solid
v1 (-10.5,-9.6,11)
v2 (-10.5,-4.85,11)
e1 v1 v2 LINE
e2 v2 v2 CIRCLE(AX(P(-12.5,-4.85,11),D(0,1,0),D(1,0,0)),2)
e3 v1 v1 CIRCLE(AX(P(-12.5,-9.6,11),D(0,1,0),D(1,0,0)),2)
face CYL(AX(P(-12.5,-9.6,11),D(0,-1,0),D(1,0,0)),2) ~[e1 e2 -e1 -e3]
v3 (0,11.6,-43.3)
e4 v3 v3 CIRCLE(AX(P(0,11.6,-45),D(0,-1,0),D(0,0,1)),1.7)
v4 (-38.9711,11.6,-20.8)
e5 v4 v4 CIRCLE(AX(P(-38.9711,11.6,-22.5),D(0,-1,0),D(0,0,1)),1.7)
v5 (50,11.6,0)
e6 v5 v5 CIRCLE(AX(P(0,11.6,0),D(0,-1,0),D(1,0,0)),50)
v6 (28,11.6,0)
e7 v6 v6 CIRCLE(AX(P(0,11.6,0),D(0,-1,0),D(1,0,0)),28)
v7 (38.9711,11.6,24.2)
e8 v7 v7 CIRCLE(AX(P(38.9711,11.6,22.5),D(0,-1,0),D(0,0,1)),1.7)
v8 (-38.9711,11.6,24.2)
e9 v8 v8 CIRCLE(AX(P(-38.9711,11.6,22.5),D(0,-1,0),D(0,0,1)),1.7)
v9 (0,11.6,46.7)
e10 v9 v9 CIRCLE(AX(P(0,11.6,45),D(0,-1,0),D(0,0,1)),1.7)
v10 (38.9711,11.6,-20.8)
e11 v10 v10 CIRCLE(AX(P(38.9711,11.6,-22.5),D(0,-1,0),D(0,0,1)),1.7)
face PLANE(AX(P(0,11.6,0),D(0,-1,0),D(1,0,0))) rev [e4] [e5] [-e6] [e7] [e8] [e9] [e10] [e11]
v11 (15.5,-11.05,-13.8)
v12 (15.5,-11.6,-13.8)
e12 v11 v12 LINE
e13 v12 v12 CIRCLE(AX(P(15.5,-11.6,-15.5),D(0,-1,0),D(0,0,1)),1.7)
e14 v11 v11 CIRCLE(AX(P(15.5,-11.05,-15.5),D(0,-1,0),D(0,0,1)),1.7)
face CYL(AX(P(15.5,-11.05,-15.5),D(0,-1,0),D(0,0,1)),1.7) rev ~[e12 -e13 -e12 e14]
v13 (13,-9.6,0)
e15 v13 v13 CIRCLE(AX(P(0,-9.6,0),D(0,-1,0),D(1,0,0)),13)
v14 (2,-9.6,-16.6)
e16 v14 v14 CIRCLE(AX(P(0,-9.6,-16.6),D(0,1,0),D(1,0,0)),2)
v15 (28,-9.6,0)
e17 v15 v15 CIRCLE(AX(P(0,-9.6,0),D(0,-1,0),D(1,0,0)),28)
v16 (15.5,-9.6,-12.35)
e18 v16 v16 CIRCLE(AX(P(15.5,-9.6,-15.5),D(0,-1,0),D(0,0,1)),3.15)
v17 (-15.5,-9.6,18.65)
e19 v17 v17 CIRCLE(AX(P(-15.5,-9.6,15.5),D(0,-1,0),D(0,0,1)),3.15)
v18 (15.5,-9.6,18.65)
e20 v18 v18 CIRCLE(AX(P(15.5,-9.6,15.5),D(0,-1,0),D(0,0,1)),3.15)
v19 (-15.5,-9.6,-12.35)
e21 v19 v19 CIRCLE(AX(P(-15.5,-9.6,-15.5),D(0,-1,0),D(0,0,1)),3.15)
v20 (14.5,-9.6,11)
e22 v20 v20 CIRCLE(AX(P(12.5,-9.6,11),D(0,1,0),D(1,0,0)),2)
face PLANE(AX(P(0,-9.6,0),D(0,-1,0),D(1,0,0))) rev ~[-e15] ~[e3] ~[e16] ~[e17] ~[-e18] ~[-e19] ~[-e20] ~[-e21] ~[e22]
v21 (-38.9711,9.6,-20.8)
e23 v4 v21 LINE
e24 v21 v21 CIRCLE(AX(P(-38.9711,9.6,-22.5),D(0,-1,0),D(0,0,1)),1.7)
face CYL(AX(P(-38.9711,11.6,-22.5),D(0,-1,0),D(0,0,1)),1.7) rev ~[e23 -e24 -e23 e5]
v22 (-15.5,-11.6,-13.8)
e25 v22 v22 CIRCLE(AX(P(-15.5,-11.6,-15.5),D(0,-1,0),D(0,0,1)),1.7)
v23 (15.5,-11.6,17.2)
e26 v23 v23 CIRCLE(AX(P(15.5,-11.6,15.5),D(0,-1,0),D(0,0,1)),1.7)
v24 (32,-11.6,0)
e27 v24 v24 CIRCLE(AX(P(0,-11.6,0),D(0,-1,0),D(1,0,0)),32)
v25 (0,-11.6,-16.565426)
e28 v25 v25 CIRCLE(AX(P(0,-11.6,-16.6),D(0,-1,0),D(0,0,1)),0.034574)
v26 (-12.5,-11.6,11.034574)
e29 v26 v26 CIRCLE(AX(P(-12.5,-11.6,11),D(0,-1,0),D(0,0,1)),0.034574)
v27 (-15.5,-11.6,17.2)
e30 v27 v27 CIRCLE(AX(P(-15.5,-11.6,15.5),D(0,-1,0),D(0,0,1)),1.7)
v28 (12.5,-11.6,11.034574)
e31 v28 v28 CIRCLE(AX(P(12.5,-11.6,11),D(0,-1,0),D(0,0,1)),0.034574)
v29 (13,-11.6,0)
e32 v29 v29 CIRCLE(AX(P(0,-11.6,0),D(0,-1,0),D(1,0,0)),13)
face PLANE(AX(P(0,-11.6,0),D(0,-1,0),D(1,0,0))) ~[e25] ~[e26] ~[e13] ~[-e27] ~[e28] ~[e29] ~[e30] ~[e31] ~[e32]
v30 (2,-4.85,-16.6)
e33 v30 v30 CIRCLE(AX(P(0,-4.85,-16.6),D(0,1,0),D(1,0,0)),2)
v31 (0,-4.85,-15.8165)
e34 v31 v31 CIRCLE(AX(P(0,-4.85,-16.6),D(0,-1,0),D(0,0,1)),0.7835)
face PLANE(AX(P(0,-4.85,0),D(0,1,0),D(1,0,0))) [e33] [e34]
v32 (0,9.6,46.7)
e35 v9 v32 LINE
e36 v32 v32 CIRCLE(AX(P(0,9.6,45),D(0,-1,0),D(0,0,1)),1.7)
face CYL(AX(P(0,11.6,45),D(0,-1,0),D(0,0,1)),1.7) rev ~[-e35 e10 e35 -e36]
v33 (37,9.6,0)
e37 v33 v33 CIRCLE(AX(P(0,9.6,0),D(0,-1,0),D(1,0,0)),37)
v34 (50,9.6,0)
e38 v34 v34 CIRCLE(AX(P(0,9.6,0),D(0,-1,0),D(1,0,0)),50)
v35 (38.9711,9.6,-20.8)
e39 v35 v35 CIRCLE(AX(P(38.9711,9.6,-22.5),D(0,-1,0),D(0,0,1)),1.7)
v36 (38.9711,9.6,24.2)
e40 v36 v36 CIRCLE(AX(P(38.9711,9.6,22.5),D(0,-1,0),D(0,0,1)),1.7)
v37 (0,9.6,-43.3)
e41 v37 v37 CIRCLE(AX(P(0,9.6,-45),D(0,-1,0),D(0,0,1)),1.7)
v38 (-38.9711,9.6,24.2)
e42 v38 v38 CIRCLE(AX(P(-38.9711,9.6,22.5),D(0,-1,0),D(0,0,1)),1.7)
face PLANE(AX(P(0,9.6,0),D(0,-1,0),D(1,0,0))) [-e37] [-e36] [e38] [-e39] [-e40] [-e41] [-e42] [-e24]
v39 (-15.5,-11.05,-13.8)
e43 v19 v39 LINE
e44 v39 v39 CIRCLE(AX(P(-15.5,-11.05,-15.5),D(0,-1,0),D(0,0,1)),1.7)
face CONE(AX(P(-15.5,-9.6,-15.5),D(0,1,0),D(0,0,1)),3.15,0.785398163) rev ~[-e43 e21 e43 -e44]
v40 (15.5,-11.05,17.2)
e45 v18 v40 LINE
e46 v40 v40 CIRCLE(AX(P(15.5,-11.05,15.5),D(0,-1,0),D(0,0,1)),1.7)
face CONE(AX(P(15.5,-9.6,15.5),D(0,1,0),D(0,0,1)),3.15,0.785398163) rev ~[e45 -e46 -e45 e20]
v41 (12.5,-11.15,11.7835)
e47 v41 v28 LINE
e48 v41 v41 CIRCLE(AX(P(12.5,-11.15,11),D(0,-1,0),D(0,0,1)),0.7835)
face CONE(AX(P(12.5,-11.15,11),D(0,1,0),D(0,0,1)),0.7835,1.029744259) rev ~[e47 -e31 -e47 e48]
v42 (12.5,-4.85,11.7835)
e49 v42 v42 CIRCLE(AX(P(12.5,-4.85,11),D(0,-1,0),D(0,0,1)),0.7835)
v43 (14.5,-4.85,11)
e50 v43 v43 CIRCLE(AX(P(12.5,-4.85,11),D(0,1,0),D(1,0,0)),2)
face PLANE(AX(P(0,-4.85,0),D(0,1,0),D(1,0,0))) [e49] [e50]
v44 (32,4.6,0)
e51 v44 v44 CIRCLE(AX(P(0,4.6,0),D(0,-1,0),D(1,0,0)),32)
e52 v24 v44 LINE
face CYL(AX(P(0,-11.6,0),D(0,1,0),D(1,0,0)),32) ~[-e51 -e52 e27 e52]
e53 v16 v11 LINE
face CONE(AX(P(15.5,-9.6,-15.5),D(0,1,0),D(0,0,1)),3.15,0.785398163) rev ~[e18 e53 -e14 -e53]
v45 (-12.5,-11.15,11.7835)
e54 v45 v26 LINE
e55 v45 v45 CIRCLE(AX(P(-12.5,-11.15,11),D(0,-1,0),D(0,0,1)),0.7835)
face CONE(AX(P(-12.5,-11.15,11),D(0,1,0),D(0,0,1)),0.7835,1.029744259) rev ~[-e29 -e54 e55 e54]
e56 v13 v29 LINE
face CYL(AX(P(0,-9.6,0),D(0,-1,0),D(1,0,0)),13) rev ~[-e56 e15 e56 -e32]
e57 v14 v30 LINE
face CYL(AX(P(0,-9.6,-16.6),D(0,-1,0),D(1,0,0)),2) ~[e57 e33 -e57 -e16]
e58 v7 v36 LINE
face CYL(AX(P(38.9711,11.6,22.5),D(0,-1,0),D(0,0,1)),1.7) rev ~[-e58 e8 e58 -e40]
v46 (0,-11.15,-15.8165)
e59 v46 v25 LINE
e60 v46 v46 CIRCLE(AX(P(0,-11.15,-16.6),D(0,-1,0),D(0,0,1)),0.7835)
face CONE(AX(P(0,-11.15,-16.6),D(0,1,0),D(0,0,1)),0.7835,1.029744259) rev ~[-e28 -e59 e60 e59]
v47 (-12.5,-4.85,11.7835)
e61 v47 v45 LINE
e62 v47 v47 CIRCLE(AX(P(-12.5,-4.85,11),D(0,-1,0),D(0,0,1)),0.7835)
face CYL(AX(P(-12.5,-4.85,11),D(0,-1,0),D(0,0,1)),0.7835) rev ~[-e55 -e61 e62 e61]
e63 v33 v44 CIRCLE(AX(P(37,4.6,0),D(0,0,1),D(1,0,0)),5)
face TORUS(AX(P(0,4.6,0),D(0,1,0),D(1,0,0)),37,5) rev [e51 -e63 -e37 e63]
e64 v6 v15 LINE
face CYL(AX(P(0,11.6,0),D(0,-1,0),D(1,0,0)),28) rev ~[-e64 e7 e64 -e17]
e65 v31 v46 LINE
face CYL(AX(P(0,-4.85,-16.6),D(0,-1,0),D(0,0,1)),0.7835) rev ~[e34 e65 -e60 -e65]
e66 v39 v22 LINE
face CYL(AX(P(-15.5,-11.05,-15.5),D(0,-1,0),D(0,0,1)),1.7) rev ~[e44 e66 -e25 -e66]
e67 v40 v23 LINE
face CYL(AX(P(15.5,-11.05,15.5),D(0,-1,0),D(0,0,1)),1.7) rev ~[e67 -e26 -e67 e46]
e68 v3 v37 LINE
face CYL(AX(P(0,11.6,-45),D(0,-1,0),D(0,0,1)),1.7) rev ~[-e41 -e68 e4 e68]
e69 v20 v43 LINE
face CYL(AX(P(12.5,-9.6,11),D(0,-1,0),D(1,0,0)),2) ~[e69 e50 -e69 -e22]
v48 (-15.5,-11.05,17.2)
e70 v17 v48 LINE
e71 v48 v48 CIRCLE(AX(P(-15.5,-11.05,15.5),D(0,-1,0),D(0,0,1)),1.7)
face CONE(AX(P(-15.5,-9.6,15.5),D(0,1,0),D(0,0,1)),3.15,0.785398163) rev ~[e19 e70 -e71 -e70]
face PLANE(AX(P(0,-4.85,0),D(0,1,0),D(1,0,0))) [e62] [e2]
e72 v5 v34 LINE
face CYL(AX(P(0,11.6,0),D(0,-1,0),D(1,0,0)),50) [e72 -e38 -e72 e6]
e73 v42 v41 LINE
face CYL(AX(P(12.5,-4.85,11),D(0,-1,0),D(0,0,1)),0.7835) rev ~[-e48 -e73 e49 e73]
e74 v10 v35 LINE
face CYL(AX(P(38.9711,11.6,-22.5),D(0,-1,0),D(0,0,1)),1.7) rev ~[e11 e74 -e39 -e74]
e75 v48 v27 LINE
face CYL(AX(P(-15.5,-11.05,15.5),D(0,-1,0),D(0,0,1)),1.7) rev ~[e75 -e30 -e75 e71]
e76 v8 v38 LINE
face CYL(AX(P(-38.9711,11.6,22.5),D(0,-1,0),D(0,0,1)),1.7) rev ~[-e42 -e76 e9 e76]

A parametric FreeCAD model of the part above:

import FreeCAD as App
import Part
import Sketcher


def edges_at(feature, points):
    """Names of the edges that pass closest to the given points."""
    edges = feature.Shape.Edges
    near = lambda p: min(range(len(edges)), key=lambda i: edges[i].distToShape(Part.Vertex(*p))[0])
    return sorted({f"Edge{near(p) + 1}" for p in points})

doc = App.newDocument("Part")
body = doc.addObject("PartDesign::Body", "Body")

# Sketch on XY plane
sketch1 = doc.addObject("Sketcher::SketchObject", "Sketch")
body.addObject(sketch1)
sketch1.AttachmentSupport = (doc.XY_Plane, [""])
sketch1.MapMode = "FlatFace"
sketch1.addGeometry([
    Part.LineSegment(App.Vector(50, 9.6, 0), App.Vector(50, 11.6, 0)),  # 0
    Part.LineSegment(App.Vector(50, 11.6, 0), App.Vector(28, 11.6, 0)),  # 1
    Part.LineSegment(App.Vector(28, 11.6, 0), App.Vector(28, -9.6, 0)),  # 2
    Part.LineSegment(App.Vector(28, -9.6, 0), App.Vector(13, -9.6, 0)),  # 3
    Part.LineSegment(App.Vector(13, -9.6, 0), App.Vector(13, -11.6, 0)),  # 4
    Part.LineSegment(App.Vector(13, -11.6, 0), App.Vector(32, -11.6, 0)),  # 5
    Part.LineSegment(App.Vector(32, -11.6, 0), App.Vector(32, 9.6, 0)),  # 6
    Part.LineSegment(App.Vector(32, 9.6, 0), App.Vector(50, 9.6, 0)),  # 7
], False)
sketch1.addConstraint([
    Sketcher.Constraint("Coincident", 0, 2, 1, 1),
    Sketcher.Constraint("Coincident", 1, 2, 2, 1),
    Sketcher.Constraint("Coincident", 2, 2, 3, 1),
    Sketcher.Constraint("Coincident", 3, 2, 4, 1),
    Sketcher.Constraint("Coincident", 4, 2, 5, 1),
    Sketcher.Constraint("Coincident", 5, 2, 6, 1),
    Sketcher.Constraint("Coincident", 6, 2, 7, 1),
    Sketcher.Constraint("Coincident", 7, 2, 0, 1),
    Sketcher.Constraint("Vertical", 0),
    Sketcher.Constraint("Horizontal", 1),
    Sketcher.Constraint("Vertical", 2),
    Sketcher.Constraint("Horizontal", 3),
    Sketcher.Constraint("Vertical", 4),
    Sketcher.Constraint("Horizontal", 5),
    Sketcher.Constraint("Vertical", 6),
    Sketcher.Constraint("Horizontal", 7),
    Sketcher.Constraint("Equal", 0, 4),
    Sketcher.Constraint("DistanceY", 0, 1, 0, 2, 2.0),
    Sketcher.Constraint("DistanceY", 2, 2, 2, 1, 21.2),
    Sketcher.Constraint("DistanceX", -1, 1, 0, 2, 50.0),
    Sketcher.Constraint("DistanceX", -1, 1, 3, 2, 13.0),
    Sketcher.Constraint("DistanceX", -1, 1, 5, 2, 32.0),
    Sketcher.Constraint("DistanceX", 2, 2, 5, 2, 4.0),
    Sketcher.Constraint("DistanceY", -1, 1, 0, 2, 11.6),
])
revolution = doc.addObject("PartDesign::Revolution", "Revolution")
body.addObject(revolution)
revolution.Profile = sketch1
revolution.ReferenceAxis = (sketch1, ["V_Axis"])
revolution.Angle = 360

# Sketch on XZ plane
sketch2 = doc.addObject("Sketcher::SketchObject", "Sketch001")
body.addObject(sketch2)
sketch2.AttachmentSupport = (doc.XZ_Plane, [""])
sketch2.MapMode = "FlatFace"
sketch2.AttachmentOffset = App.Placement(App.Vector(0, 0, 9.6), App.Rotation())
sketch2.addGeometry([
    Part.Circle(App.Vector(15.5, -15.5, 0), App.Vector(0, 0, 1), 1.7),
    Part.Circle(App.Vector(-15.5, -15.5, 0), App.Vector(0, 0, 1), 1.7),
    Part.Circle(App.Vector(-15.5, 15.5, 0), App.Vector(0, 0, 1), 1.7),
    Part.Circle(App.Vector(15.5, 15.5, 0), App.Vector(0, 0, 1), 1.7),
], False)
sketch2.addConstraint([
    Sketcher.Constraint("Equal", 0, 1),
    Sketcher.Constraint("Equal", 1, 2),
    Sketcher.Constraint("Equal", 2, 3),
    Sketcher.Constraint("Symmetric", 0, 3, 2, 3, -1, 1),
    Sketcher.Constraint("Symmetric", 1, 3, 3, 3, -1, 1),
    Sketcher.Constraint("Symmetric", 0, 3, 1, 3, -2),
    Sketcher.Constraint("Diameter", 0, 3.4),
    Sketcher.Constraint("DistanceX", 1, 3, 0, 3, 31.0),
    Sketcher.Constraint("DistanceY", 1, 3, 2, 3, 31.0),
])
doc.recompute()
hole = doc.addObject("PartDesign::Hole", "Hole")
body.addObject(hole)
hole.Profile = sketch2
hole.ThreadType = "None"
hole.Diameter = 3.4
hole.DepthType = "ThroughAll"
hole.HoleCutType = "Countersink"
hole.HoleCutDiameter = 6.3
hole.HoleCutCountersinkAngle = 90
hole.Reversed = True

# Sketch on XZ plane
sketch3 = doc.addObject("Sketcher::SketchObject", "Sketch002")
body.addObject(sketch3)
sketch3.AttachmentSupport = (doc.XZ_Plane, [""])
sketch3.MapMode = "FlatFace"
sketch3.AttachmentOffset = App.Placement(App.Vector(0, 0, -11.6), App.Rotation())
sketch3.addGeometry([
    Part.Circle(App.Vector(0, -45, 0), App.Vector(0, 0, 1), 1.7),  # 0
    Part.Circle(App.Vector(-39, -22.5, 0), App.Vector(0, 0, 1), 1.7),  # 1
    Part.Circle(App.Vector(-39, 22.5, 0), App.Vector(0, 0, 1), 1.7),  # 2
    Part.Circle(App.Vector(0, 45, 0), App.Vector(0, 0, 1), 1.7),  # 3
    Part.Circle(App.Vector(39, 22.5, 0), App.Vector(0, 0, 1), 1.7),  # 4
    Part.Circle(App.Vector(39, -22.5, 0), App.Vector(0, 0, 1), 1.7),  # 5
], False)
sketch3.addConstraint([
    Sketcher.Constraint("Equal", 0, 1),
    Sketcher.Constraint("Equal", 1, 2),
    Sketcher.Constraint("Equal", 2, 3),
    Sketcher.Constraint("Equal", 3, 4),
    Sketcher.Constraint("Equal", 4, 5),
    Sketcher.Constraint("Symmetric", 0, 3, 3, 3, -1, 1),
    Sketcher.Constraint("Symmetric", 1, 3, 4, 3, -1, 1),
    Sketcher.Constraint("Symmetric", 2, 3, 5, 3, -1, 1),
    Sketcher.Constraint("Symmetric", 2, 3, 4, 3, -2),
    Sketcher.Constraint("PointOnObject", 0, 3, -2),
    Sketcher.Constraint("Diameter", 0, 3.4),
    Sketcher.Constraint("DistanceY", 0, 3, -1, 1, 45.0),
    Sketcher.Constraint("DistanceY", 1, 3, 2, 3, 45.0),
    Sketcher.Constraint("DistanceX", 1, 3, -1, 1, 38.971),
])
doc.recompute()
hole2 = doc.addObject("PartDesign::Hole", "Hole001")
body.addObject(hole2)
hole2.Profile = sketch3
hole2.ThreadType = "None"
hole2.Diameter = 3.4
hole2.DepthType = "Dimension"
hole2.Depth = 2
hole2.DrillPoint = "Flat"
hole2.Reversed = True
doc.recompute()

fillet = doc.addObject("PartDesign::Fillet", "Fillet")
body.addObject(fillet)
fillet.Base = (hole2, edges_at(hole2, [(-32, 9.6, 0)]))
fillet.Radius = 5

# Sketch on XZ plane
sketch4 = doc.addObject("Sketcher::SketchObject", "Sketch003")
body.addObject(sketch4)
sketch4.AttachmentSupport = (doc.XZ_Plane, [""])
sketch4.MapMode = "FlatFace"
sketch4.AttachmentOffset = App.Placement(App.Vector(0, 0, 9.6), App.Rotation())
sketch4.addGeometry([
    Part.Circle(App.Vector(0, -16.6, 0), App.Vector(0, 0, 1), 2),
    Part.Circle(App.Vector(12.5, 11, 0), App.Vector(0, 0, 1), 2),
    Part.Circle(App.Vector(-12.5, 11, 0), App.Vector(0, 0, 1), 2),
], False)
sketch4.addConstraint([
    Sketcher.Constraint("Equal", 0, 1),
    Sketcher.Constraint("Equal", 1, 2),
    Sketcher.Constraint("Symmetric", 1, 3, 2, 3, -2),
    Sketcher.Constraint("PointOnObject", 0, 3, -2),
    Sketcher.Constraint("Diameter", 0, 4.0),
    Sketcher.Constraint("DistanceY", -1, 1, 1, 3, 11.0),
    Sketcher.Constraint("DistanceX", 2, 3, 1, 3, 25.0),
    Sketcher.Constraint("DistanceY", 0, 3, -1, 1, 16.6),
])
pad1 = doc.addObject("PartDesign::Pad", "Pad")
body.addObject(pad1)
pad1.Profile = sketch4
pad1.Length = 4.75
pad1.Reversed = True

# Sketch on XZ plane
sketch5 = doc.addObject("Sketcher::SketchObject", "Sketch004")
body.addObject(sketch5)
sketch5.AttachmentSupport = (doc.XZ_Plane, [""])
sketch5.MapMode = "FlatFace"
sketch5.AttachmentOffset = App.Placement(App.Vector(0, 0, 4.85), App.Rotation())
sketch5.addGeometry([
    Part.Circle(App.Vector(0, -16.6, 0), App.Vector(0, 0, 1), 0.8),
    Part.Circle(App.Vector(-12.5, 11, 0), App.Vector(0, 0, 1), 0.8),
    Part.Circle(App.Vector(12.5, 11, 0), App.Vector(0, 0, 1), 0.8),
], False)
sketch5.addConstraint([
    Sketcher.Constraint("Equal", 0, 1),
    Sketcher.Constraint("Equal", 1, 2),
    Sketcher.Constraint("Symmetric", 1, 3, 2, 3, -2),
    Sketcher.Constraint("PointOnObject", 0, 3, -2),
    Sketcher.Constraint("Diameter", 0, 1.567),
    Sketcher.Constraint("DistanceY", -1, 1, 1, 3, 11.0),
    Sketcher.Constraint("DistanceX", 1, 3, 2, 3, 25.0),
    Sketcher.Constraint("DistanceY", 0, 3, -1, 1, 16.6),
])
doc.recompute()
hole3 = doc.addObject("PartDesign::Hole", "Hole002")
body.addObject(hole3)
hole3.Profile = sketch5
hole3.ThreadType = "None"
hole3.Diameter = 1.567
hole3.DepthType = "Dimension"
hole3.Depth = 6.3
hole3.DrillPoint = "Angled"
hole3.DrillPointAngle = 118
hole3.Reversed = True

doc.recompute()
